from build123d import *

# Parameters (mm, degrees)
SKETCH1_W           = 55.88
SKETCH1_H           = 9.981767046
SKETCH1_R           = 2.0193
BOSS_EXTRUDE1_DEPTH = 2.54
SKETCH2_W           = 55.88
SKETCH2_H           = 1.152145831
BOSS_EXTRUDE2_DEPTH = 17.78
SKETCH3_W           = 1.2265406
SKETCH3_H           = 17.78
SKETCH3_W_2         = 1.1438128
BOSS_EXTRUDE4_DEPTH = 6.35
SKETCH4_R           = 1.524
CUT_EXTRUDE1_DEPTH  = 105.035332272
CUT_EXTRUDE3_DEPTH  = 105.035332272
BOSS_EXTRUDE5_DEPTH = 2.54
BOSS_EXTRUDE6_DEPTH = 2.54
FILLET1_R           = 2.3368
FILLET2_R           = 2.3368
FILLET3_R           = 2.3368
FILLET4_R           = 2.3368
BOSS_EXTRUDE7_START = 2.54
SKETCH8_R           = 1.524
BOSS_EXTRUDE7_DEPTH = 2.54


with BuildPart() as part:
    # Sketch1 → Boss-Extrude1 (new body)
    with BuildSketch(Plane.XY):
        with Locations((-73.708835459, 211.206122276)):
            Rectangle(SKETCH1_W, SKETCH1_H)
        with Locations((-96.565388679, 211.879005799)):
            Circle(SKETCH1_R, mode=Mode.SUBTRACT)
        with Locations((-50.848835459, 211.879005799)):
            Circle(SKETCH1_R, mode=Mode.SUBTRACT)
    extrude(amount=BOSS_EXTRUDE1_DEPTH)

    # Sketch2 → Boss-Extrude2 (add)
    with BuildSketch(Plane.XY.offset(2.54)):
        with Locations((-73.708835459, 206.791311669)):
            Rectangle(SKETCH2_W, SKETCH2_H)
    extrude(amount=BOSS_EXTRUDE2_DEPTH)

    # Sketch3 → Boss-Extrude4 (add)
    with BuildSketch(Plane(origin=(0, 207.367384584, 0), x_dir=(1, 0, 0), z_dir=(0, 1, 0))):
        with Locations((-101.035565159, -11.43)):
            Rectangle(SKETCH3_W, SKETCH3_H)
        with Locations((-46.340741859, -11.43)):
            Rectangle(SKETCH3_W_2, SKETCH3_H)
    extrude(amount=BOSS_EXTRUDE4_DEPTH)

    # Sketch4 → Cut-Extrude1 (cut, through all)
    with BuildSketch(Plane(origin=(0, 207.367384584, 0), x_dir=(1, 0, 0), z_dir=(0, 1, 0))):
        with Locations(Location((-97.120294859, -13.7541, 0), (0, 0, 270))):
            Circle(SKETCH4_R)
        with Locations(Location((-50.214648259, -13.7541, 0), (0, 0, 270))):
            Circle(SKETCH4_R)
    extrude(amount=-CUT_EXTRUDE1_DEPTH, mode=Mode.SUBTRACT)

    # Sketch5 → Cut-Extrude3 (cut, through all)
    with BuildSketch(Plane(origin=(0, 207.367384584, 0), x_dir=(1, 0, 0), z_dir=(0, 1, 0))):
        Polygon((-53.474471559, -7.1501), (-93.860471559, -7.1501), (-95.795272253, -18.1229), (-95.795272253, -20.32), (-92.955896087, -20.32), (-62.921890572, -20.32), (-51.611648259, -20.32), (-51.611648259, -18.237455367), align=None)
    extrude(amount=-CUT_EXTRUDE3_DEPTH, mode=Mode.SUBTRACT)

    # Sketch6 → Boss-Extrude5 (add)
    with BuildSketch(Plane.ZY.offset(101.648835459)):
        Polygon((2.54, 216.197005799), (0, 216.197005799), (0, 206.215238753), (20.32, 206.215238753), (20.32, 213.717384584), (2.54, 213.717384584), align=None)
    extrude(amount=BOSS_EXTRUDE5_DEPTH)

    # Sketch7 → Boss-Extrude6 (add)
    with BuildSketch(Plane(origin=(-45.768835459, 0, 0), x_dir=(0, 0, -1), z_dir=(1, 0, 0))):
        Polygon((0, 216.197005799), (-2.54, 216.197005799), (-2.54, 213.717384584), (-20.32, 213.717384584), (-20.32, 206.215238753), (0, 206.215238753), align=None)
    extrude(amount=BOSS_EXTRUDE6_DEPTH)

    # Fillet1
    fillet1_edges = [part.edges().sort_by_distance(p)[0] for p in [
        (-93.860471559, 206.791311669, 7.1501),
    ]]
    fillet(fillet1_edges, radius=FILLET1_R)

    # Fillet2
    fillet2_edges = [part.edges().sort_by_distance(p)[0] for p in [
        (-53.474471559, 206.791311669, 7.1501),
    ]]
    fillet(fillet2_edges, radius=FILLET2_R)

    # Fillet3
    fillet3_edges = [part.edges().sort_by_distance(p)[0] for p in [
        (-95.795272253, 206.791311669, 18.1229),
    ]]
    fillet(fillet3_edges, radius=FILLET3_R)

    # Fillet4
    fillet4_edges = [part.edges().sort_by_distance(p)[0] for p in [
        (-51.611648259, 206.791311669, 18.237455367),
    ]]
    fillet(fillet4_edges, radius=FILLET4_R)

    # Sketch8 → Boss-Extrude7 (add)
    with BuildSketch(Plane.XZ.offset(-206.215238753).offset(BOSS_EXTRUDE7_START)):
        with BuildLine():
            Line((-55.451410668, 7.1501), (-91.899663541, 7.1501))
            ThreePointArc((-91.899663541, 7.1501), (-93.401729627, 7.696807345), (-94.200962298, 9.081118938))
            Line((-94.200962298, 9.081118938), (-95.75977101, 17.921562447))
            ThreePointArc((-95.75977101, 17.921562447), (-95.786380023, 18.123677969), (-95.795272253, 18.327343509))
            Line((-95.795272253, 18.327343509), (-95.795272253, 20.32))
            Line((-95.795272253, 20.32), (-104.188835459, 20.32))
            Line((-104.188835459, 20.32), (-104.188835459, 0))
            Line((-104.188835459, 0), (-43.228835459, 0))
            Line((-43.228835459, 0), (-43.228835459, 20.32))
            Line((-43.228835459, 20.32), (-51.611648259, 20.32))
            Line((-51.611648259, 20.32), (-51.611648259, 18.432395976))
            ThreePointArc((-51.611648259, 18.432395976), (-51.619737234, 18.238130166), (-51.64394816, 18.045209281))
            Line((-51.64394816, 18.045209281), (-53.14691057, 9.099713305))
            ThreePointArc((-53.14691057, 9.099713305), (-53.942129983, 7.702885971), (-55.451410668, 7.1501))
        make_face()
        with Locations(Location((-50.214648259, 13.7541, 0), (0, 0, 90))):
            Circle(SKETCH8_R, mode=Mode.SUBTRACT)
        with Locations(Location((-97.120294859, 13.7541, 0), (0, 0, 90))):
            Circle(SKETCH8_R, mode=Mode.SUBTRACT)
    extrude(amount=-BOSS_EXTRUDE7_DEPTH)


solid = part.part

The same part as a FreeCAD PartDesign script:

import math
import FreeCAD as App
import Part
import Sketcher
from FreeCAD import Vector
Q = App.Units.Quantity


def edges_at(feature, points):
    """Names of the edges that pass closest to the given points."""
    edges = feature.Shape.Edges
    near = lambda p: min(range(len(edges)), key=lambda i: edges[i].distToShape(Part.Vertex(*p))[0])
    return sorted({f"Edge{near(p) + 1}" for p in points})


def add_polygon(sketch, points):
    """Adds a closed chain of lines whose ends are joined by coincident constraints."""
    first, n = sketch.GeometryCount, len(points)
    for a, b in zip(points, points[1:] + points[:1]):
        sketch.addGeometry(Part.LineSegment(App.Vector(*a, 0), App.Vector(*b, 0)), False)
    for i in range(n):
        sketch.addConstraint(Sketcher.Constraint("Coincident", first + i, 2, first + (i + 1) % n, 1))

doc = App.newDocument("Part")
body = doc.addObject("PartDesign::Body", "Body")

# Sketch on XY plane
sketch1 = body.newObject("Sketcher::SketchObject", "Sketch")
sketch1.AttachmentSupport = (doc.getObject("XY_Plane"), [""])
sketch1.MapMode = "FlatFace"
add_polygon(sketch1, [(-101.6, 216.2), (-101.6, 206.2), (-45.8, 206.2), (-45.8, 216.2)])  # lines 0-3
sketch1.addGeometry(Part.Circle(Vector(-96.6, 211.9, 0), Vector(0, 0, 1), 2), False)  # 4
sketch1.addGeometry(Part.Circle(Vector(-50.8, 211.9, 0), Vector(0, 0, 1), 2), False)  # 5
sketch1.addConstraint(Sketcher.Constraint("Vertical", 0))
sketch1.addConstraint(Sketcher.Constraint("Horizontal", 1))
sketch1.addConstraint(Sketcher.Constraint("Vertical", 2))
sketch1.addConstraint(Sketcher.Constraint("Horizontal", 3))
sketch1.addConstraint(Sketcher.Constraint("Equal", 4, 5))
sketch1.addConstraint(Sketcher.Constraint("Horizontal", 4, 3, 5, 3))
sketch1.addConstraint(Sketcher.Constraint("Diameter", 4, Q("0.159 in")))
sketch1.addConstraint(Sketcher.Constraint("DistanceX", 1, 1, 1, 2, Q("2.2 in")))
sketch1.addConstraint(Sketcher.Constraint("DistanceX", 0, 2, 5, 3, Q("2 in")))
sketch1.addConstraint(Sketcher.Constraint("DistanceY", 5, 3, 2, 2, Q("0.17 in")))
sketch1.addConstraint(Sketcher.Constraint("DistanceY", 0, 2, 0, 1, 9.981767))
sketch1.addConstraint(Sketcher.Constraint("DistanceX", 4, 3, -1, 1, 96.565389))
sketch1.addConstraint(Sketcher.Constraint("DistanceY", -1, 1, 0, 2, 206.215239))
sketch1.addConstraint(Sketcher.Constraint("DistanceX", 5, 3, -1, 1, 50.848835))
pad1 = body.newObject("PartDesign::Pad", "Pad")
pad1.Profile = sketch1
pad1.Length = Q("0.1 in")

# Sketch on XY plane
sketch2 = body.newObject("Sketcher::SketchObject", "Sketch001")
sketch2.AttachmentSupport = (doc.getObject("XY_Plane"), [""])
sketch2.MapMode = "FlatFace"
sketch2.AttachmentOffset = App.Placement(Vector(0, 0, 0.1 * 25.4), App.Rotation())
add_polygon(sketch2, [(-101.6, 207.4), (-101.6, 206.2), (-45.8, 206.2), (-45.8, 207.4)])  # lines 0-3
sketch2.addConstraint(Sketcher.Constraint("Vertical", 0))
sketch2.addConstraint(Sketcher.Constraint("Horizontal", 1))
sketch2.addConstraint(Sketcher.Constraint("Vertical", 2))
sketch2.addConstraint(Sketcher.Constraint("Horizontal", 3))
sketch2.addConstraint(Sketcher.Constraint("DistanceX", 1, 1, 1, 2, Q("2.2 in")))
sketch2.addConstraint(Sketcher.Constraint("DistanceY", 0, 2, 0, 1, 1.152146))
sketch2.addConstraint(Sketcher.Constraint("DistanceY", -1, 1, 0, 2, 206.215239))
sketch2.addConstraint(Sketcher.Constraint("DistanceX", 0, 2, -1, 1, 101.648835))
pad2 = body.newObject("PartDesign::Pad", "Pad001")
pad2.Profile = sketch2
pad2.Length = Q("0.7 in")

# Sketch on XZ plane
sketch3 = body.newObject("Sketcher::SketchObject", "Sketch002")
sketch3.AttachmentSupport = (doc.getObject("XZ_Plane"), [""])
sketch3.MapMode = "FlatFace"
sketch3.AttachmentOffset = App.Placement(Vector(0, 0, -207.367385), App.Rotation())
add_polygon(sketch3, [(-101.6, 2.5), (-101.6, 20.3), (-100.4, 20.3), (-100.4, 2.5)])  # lines 0-3
add_polygon(sketch3, [(-46.9, 2.5), (-46.9, 20.3), (-45.8, 20.3), (-45.8, 2.5)])  # lines 4-7
sketch3.addConstraint(Sketcher.Constraint("Vertical", 0))
sketch3.addConstraint(Sketcher.Constraint("Horizontal", 1))
sketch3.addConstraint(Sketcher.Constraint("Vertical", 2))
sketch3.addConstraint(Sketcher.Constraint("Horizontal", 3))
sketch3.addConstraint(Sketcher.Constraint("Vertical", 4))
sketch3.addConstraint(Sketcher.Constraint("Horizontal", 5))
sketch3.addConstraint(Sketcher.Constraint("Vertical", 6))
sketch3.addConstraint(Sketcher.Constraint("Horizontal", 7))
sketch3.addConstraint(Sketcher.Constraint("Horizontal", 1, 2, 4, 2))
sketch3.addConstraint(Sketcher.Constraint("Horizontal", 3, 2, 6, 2))
sketch3.addConstraint(Sketcher.Constraint("DistanceY", 0, 1, 0, 2, Q("0.7 in")))
sketch3.addConstraint(Sketcher.Constraint("DistanceY", -1, 1, 0, 2, Q("0.8 in")))
sketch3.addConstraint(Sketcher.Constraint("DistanceX", 0, 2, 5, 2, Q("2.2 in")))
sketch3.addConstraint(Sketcher.Constraint("DistanceX", 1, 1, 1, 2, 1.226541))
sketch3.addConstraint(Sketcher.Constraint("DistanceX", 5, 1, 5, 2, 1.143813))
sketch3.addConstraint(Sketcher.Constraint("DistanceX", 4, 2, -1, 1, 46.912648))
pad3 = body.newObject("PartDesign::Pad", "Pad002")
pad3.Profile = sketch3
pad3.Length = Q("0.25 in")
pad3.Reversed = True

# Sketch on XZ plane
sketch4 = body.newObject("Sketcher::SketchObject", "Sketch003")
sketch4.AttachmentSupport = (doc.getObject("XZ_Plane"), [""])
sketch4.MapMode = "FlatFace"
sketch4.AttachmentOffset = App.Placement(Vector(0, 0, -207.367385), App.Rotation())
sketch4.addGeometry(Part.Circle(Vector(-97.1, 13.8, 0), Vector(0, 0, 1), 1.5), False)
sketch4.addGeometry(Part.Circle(Vector(-50.2, 13.8, 0), Vector(0, 0, 1), 1.5), False)
sketch4.addConstraint(Sketcher.Constraint("Equal", 0, 1))
sketch4.addConstraint(Sketcher.Constraint("Horizontal", 0, 3, 1, 3))
sketch4.addConstraint(Sketcher.Constraint("Diameter", 0, Q("0.12 in")))
sketch4.addConstraint(Sketcher.Constraint("DistanceY", -1, 1, 0, 3, Q("0.5415 in")))
sketch4.addConstraint(Sketcher.Constraint("DistanceX", 1, 3, -1, 1, 50.214648))
sketch4.addConstraint(Sketcher.Constraint("DistanceX", 0, 3, -1, 1, 97.120295))
pocket1 = body.newObject("PartDesign::Pocket", "Pocket")
pocket1.Profile = sketch4
pocket1.Type = "ThroughAll"
pocket1.Reversed = True

# Sketch on XZ plane
sketch5 = body.newObject("Sketcher::SketchObject", "Sketch004")
sketch5.AttachmentSupport = (doc.getObject("XZ_Plane"), [""])
sketch5.MapMode = "FlatFace"
sketch5.AttachmentOffset = App.Placement(Vector(0, 0, -207.367385), App.Rotation())
add_polygon(sketch5, [(-53.5, 7.2), (-93.9, 7.2), (-95.8, 18.1), (-95.8, 20.3), (-51.6, 20.3), (-51.6, 18.2)])  # lines 0-5
sketch5.addConstraint(Sketcher.Constraint("Horizontal", 0))
sketch5.addConstraint(Sketcher.Constraint("Vertical", 2))
sketch5.addConstraint(Sketcher.Constraint("Horizontal", 3))
sketch5.addConstraint(Sketcher.Constraint("Vertical", 4))
sketch5.addConstraint(Sketcher.Constraint("Angle", 1, Q("100 deg")))
sketch5.addConstraint(Sketcher.Constraint("DistanceX", 0, 2, 0, 1, Q("1.59 in")))
sketch5.addConstraint(Sketcher.Constraint("DistanceY", -1, 1, 2, 2, Q("0.8 in")))
sketch5.addConstraint(Sketcher.Constraint("DistanceY", 2, 1, 2, 2, Q("0.0865 in")))
sketch5.addConstraint(Sketcher.Constraint("DistanceY", 0, 2, 1, 2, Q("0.432 in")))
sketch5.addConstraint(Sketcher.Constraint("DistanceX", 3, 1, 3, 2, 44.183624))
sketch5.addConstraint(Sketcher.Constraint("DistanceY", 4, 2, 4, 1, 2.082545))
sketch5.addConstraint(Sketcher.Constraint("DistanceX", 0, 2, -1, 1, 93.860472))
pocket2 = body.newObject("PartDesign::Pocket", "Pocket001")
pocket2.Profile = sketch5
pocket2.Type = "ThroughAll"
pocket2.Reversed = True

# Sketch on YZ plane
sketch6 = body.newObject("Sketcher::SketchObject", "Sketch005")
sketch6.AttachmentSupport = (doc.getObject("YZ_Plane"), [""])
sketch6.MapMode = "FlatFace"
sketch6.AttachmentOffset = App.Placement(Vector(0, 0, -101.648835), App.Rotation())
add_polygon(sketch6, [(216.2, 2.5), (216.2, 0), (206.2, 0), (206.2, 20.3), (213.7, 20.3), (213.7, 2.5)])  # lines 0-5
sketch6.addConstraint(Sketcher.Constraint("Vertical", 0))
sketch6.addConstraint(Sketcher.Constraint("Horizontal", 1))
sketch6.addConstraint(Sketcher.Constraint("Vertical", 2))
sketch6.addConstraint(Sketcher.Constraint("Horizontal", 3))
sketch6.addConstraint(Sketcher.Constraint("Vertical", 4))
sketch6.addConstraint(Sketcher.Constraint("Horizontal", 5))
sketch6.addConstraint(Sketcher.Constraint("PointOnObject", 0, 2, -1))
sketch6.addConstraint(Sketcher.Constraint("DistanceY", 0, 2, 0, 1, Q("0.1 in")))
sketch6.addConstraint(Sketcher.Constraint("DistanceY", 2, 1, 2, 2, Q("0.8 in")))
sketch6.addConstraint(Sketcher.Constraint("DistanceX", 5, 1, 5, 2, 2.479621))
sketch6.addConstraint(Sketcher.Constraint("DistanceX", 1, 2, 1, 1, 9.981767))
sketch6.addConstraint(Sketcher.Constraint("DistanceX", -1, 1, 1, 2, 206.215239))
pad4 = body.newObject("PartDesign::Pad", "Pad003")
pad4.Profile = sketch6
pad4.Length = Q("0.1 in")
pad4.Reversed = True

# Sketch on YZ plane
sketch7 = body.newObject("Sketcher::SketchObject", "Sketch006")
sketch7.AttachmentSupport = (doc.getObject("YZ_Plane"), [""])
sketch7.MapMode = "FlatFace"
sketch7.AttachmentOffset = App.Placement(Vector(0, 0, -45.768835), App.Rotation())
add_polygon(sketch7, [(216.2, 0), (216.2, 2.5), (213.7, 2.5), (213.7, 20.3), (206.2, 20.3), (206.2, 0)])  # lines 0-5
sketch7.addConstraint(Sketcher.Constraint("Vertical", 0))
sketch7.addConstraint(Sketcher.Constraint("Horizontal", 1))
sketch7.addConstraint(Sketcher.Constraint("Vertical", 2))
sketch7.addConstraint(Sketcher.Constraint("Horizontal", 3))
sketch7.addConstraint(Sketcher.Constraint("Vertical", 4))
sketch7.addConstraint(Sketcher.Constraint("Horizontal", 5))
sketch7.addConstraint(Sketcher.Constraint("PointOnObject", 4, 2, -1))
sketch7.addConstraint(Sketcher.Constraint("DistanceY", 0, 1, 0, 2, Q("0.1 in")))
sketch7.addConstraint(Sketcher.Constraint("DistanceY", 2, 1, 2, 2, Q("0.7 in")))
sketch7.addConstraint(Sketcher.Constraint("DistanceX", 1, 2, 1, 1, 2.479621))
sketch7.addConstraint(Sketcher.Constraint("DistanceX", 3, 2, 3, 1, 7.502146))
sketch7.addConstraint(Sketcher.Constraint("DistanceX", -1, 1, 3, 2, 206.215239))
pad5 = body.newObject("PartDesign::Pad", "Pad004")
pad5.Profile = sketch7
pad5.Length = Q("0.1 in")
doc.recompute()

fillet = body.newObject("PartDesign::Fillet", "Fillet")
fillet.Base = (pad5, edges_at(pad5, [(-93.86, 206.791, 7.15)]))
fillet.Radius = Q("0.092 in")
doc.recompute()

fillet2 = body.newObject("PartDesign::Fillet", "Fillet001")
fillet2.Base = (fillet, edges_at(fillet, [(-53.474, 206.791, 7.15)]))
fillet2.Radius = Q("0.092 in")
doc.recompute()

fillet3 = body.newObject("PartDesign::Fillet", "Fillet002")
fillet3.Base = (fillet2, edges_at(fillet2, [(-95.795, 206.791, 18.123)]))
fillet3.Radius = Q("0.092 in")
doc.recompute()

fillet4 = body.newObject("PartDesign::Fillet", "Fillet003")
fillet4.Base = (fillet3, edges_at(fillet3, [(-51.612, 206.791, 18.237)]))
fillet4.Radius = Q("0.092 in")

# Sketch on XZ plane
sketch8 = body.newObject("Sketcher::SketchObject", "Sketch007")
sketch8.AttachmentSupport = (doc.getObject("XZ_Plane"), [""])
sketch8.MapMode = "FlatFace"
sketch8.AttachmentOffset = App.Placement(Vector(0, 0, -203.675239), App.Rotation())
sketch8.addGeometry(Part.LineSegment(Vector(-55.45, 7.15, 0), Vector(-91.9, 7.15, 0)), False)
sketch8.addGeometry(Part.ArcOfCircle(Part.Circle(Vector(-91.9, 9.49, 0), Vector(0, 0, 1), 2.34), math.radians(-170), math.radians(-90)), False)
sketch8.addGeometry(Part.LineSegment(Vector(-94.2, 9.08, 0), Vector(-95.76, 17.92, 0)), False)
sketch8.addGeometry(Part.ArcOfCircle(Part.Circle(Vector(-93.46, 18.33, 0), Vector(0, 0, 1), 2.34), math.radians(-180), math.radians(-170)), False)
sketch8.addGeometry(Part.LineSegment(Vector(-95.8, 18.33, 0), Vector(-95.8, 20.32, 0)), False)
sketch8.addGeometry(Part.LineSegment(Vector(-95.8, 20.32, 0), Vector(-104.19, 20.32, 0)), False)
sketch8.addGeometry(Part.LineSegment(Vector(-104.19, 20.32, 0), Vector(-104.19, 0, 0)), False)
sketch8.addGeometry(Part.LineSegment(Vector(-104.19, 0, 0), Vector(-43.23, 0, 0)), False)
sketch8.addGeometry(Part.LineSegment(Vector(-43.23, 0, 0), Vector(-43.23, 20.32, 0)), False)
sketch8.addGeometry(Part.LineSegment(Vector(-43.23, 20.32, 0), Vector(-51.61, 20.32, 0)), False)
sketch8.addGeometry(Part.LineSegment(Vector(-51.61, 20.32, 0), Vector(-51.61, 18.43, 0)), False)
sketch8.addGeometry(Part.ArcOfCircle(Part.Circle(Vector(-53.95, 18.43, 0), Vector(0, 0, 1), 2.34), math.radians(-9.54), math.radians(0)), False)
sketch8.addGeometry(Part.LineSegment(Vector(-51.64, 18.05, 0), Vector(-53.15, 9.1, 0)), False)
sketch8.addGeometry(Part.ArcOfCircle(Part.Circle(Vector(-55.45, 9.49, 0), Vector(0, 0, 1), 2.34), math.radians(-90), math.radians(-10)), False)
sketch8.addGeometry(Part.Circle(Vector(-97.12, 13.75, 0), Vector(0, 0, 1), 1.52), False)
sketch8.addGeometry(Part.Circle(Vector(-50.21, 13.75, 0), Vector(0, 0, 1), 1.52), False)
sketch8.addConstraint(Sketcher.Constraint("Tangent", 0, 2, 1, 2))
sketch8.addConstraint(Sketcher.Constraint("Tangent", 1, 1, 2, 1))
sketch8.addConstraint(Sketcher.Constraint("Tangent", 2, 2, 3, 2))
sketch8.addConstraint(Sketcher.Constraint("Tangent", 3, 1, 4, 1))
sketch8.addConstraint(Sketcher.Constraint("Coincident", 4, 2, 5, 1))
sketch8.addConstraint(Sketcher.Constraint("Coincident", 5, 2, 6, 1))
sketch8.addConstraint(Sketcher.Constraint("Coincident", 6, 2, 7, 1))
sketch8.addConstraint(Sketcher.Constraint("Coincident", 7, 2, 8, 1))
sketch8.addConstraint(Sketcher.Constraint("Coincident", 8, 2, 9, 1))
sketch8.addConstraint(Sketcher.Constraint("Coincident", 9, 2, 10, 1))
sketch8.addConstraint(Sketcher.Constraint("Tangent", 10, 2, 11, 2))
sketch8.addConstraint(Sketcher.Constraint("Tangent", 11, 1, 12, 1))
sketch8.addConstraint(Sketcher.Constraint("Tangent", 12, 2, 13, 2))
sketch8.addConstraint(Sketcher.Constraint("Tangent", 13, 1, 0, 1))
sketch8.addConstraint(Sketcher.Constraint("Horizontal", 0))
sketch8.addConstraint(Sketcher.Constraint("Vertical", 4))
sketch8.addConstraint(Sketcher.Constraint("Horizontal", 5))
sketch8.addConstraint(Sketcher.Constraint("Vertical", 6))
sketch8.addConstraint(Sketcher.Constraint("Horizontal", 7))
sketch8.addConstraint(Sketcher.Constraint("Vertical", 8))
sketch8.addConstraint(Sketcher.Constraint("Horizontal", 9))
sketch8.addConstraint(Sketcher.Constraint("Vertical", 10))
sketch8.addConstraint(Sketcher.Constraint("Equal", 1, 3))
sketch8.addConstraint(Sketcher.Constraint("Equal", 3, 11))
sketch8.addConstraint(Sketcher.Constraint("Equal", 11, 13))
sketch8.addConstraint(Sketcher.Constraint("Equal", 14, 15))
sketch8.addConstraint(Sketcher.Constraint("PointOnObject", 6, 2, -1))
sketch8.addConstraint(Sketcher.Constraint("Horizontal", 14, 3, 15, 3))
sketch8.addConstraint(Sketcher.Constraint("Horizontal", 5, 2, 8, 2))
sketch8.addConstraint(Sketcher.Constraint("Diameter", 14, Q("0.12 in")))
sketch8.addConstraint(Sketcher.Constraint("DistanceX", 7, 1, 7, 2, Q("2.4 in")))
sketch8.addConstraint(Sketcher.Constraint("DistanceY", 6, 2, 6, 1, Q("0.8 in")))
sketch8.addConstraint(Sketcher.Constraint("Angle", 2, Q("100 deg")))
sketch8.addConstraint(Sketcher.Constraint("Radius", 1, Q("0.092 in")))
sketch8.addConstraint(Sketcher.Constraint("DistanceY", 0, 2, 14, 3, Q("0.26 in")))
sketch8.addConstraint(Sketcher.Constraint("DistanceX", 11, 3, 15, 3, Q("0.147 in")))
sketch8.addConstraint(Sketcher.Constraint("DistanceY", -1, 1, 1, 3, Q("0.3735 in")))
sketch8.addConstraint(Sketcher.Constraint("DistanceX", 13, 1, 11, 1, Q("0.1499001 in")))
sketch8.addConstraint(Sketcher.Constraint("DistanceX", 11, 1, 10, 2, 0.0323))
sketch8.addConstraint(Sketcher.Constraint("Distance", 2, 8.976822))
sketch8.addConstraint(Sketcher.Constraint("DistanceX", 0, 2, 0, 1, 36.448253))
sketch8.addConstraint(Sketcher.Constraint("DistanceX", 5, 2, 5, 1, 8.393563))
sketch8.addConstraint(Sketcher.Constraint("DistanceX", 11, 3, -1, 1, 53.948448))
sketch8.addConstraint(Sketcher.Constraint("DistanceX", 14, 3, 1, 3, 5.220631))
pad6 = body.newObject("PartDesign::Pad", "Pad005")
pad6.Profile = sketch8
pad6.Length = Q("0.1 in")
pad6.Reversed = True

doc.recompute()
